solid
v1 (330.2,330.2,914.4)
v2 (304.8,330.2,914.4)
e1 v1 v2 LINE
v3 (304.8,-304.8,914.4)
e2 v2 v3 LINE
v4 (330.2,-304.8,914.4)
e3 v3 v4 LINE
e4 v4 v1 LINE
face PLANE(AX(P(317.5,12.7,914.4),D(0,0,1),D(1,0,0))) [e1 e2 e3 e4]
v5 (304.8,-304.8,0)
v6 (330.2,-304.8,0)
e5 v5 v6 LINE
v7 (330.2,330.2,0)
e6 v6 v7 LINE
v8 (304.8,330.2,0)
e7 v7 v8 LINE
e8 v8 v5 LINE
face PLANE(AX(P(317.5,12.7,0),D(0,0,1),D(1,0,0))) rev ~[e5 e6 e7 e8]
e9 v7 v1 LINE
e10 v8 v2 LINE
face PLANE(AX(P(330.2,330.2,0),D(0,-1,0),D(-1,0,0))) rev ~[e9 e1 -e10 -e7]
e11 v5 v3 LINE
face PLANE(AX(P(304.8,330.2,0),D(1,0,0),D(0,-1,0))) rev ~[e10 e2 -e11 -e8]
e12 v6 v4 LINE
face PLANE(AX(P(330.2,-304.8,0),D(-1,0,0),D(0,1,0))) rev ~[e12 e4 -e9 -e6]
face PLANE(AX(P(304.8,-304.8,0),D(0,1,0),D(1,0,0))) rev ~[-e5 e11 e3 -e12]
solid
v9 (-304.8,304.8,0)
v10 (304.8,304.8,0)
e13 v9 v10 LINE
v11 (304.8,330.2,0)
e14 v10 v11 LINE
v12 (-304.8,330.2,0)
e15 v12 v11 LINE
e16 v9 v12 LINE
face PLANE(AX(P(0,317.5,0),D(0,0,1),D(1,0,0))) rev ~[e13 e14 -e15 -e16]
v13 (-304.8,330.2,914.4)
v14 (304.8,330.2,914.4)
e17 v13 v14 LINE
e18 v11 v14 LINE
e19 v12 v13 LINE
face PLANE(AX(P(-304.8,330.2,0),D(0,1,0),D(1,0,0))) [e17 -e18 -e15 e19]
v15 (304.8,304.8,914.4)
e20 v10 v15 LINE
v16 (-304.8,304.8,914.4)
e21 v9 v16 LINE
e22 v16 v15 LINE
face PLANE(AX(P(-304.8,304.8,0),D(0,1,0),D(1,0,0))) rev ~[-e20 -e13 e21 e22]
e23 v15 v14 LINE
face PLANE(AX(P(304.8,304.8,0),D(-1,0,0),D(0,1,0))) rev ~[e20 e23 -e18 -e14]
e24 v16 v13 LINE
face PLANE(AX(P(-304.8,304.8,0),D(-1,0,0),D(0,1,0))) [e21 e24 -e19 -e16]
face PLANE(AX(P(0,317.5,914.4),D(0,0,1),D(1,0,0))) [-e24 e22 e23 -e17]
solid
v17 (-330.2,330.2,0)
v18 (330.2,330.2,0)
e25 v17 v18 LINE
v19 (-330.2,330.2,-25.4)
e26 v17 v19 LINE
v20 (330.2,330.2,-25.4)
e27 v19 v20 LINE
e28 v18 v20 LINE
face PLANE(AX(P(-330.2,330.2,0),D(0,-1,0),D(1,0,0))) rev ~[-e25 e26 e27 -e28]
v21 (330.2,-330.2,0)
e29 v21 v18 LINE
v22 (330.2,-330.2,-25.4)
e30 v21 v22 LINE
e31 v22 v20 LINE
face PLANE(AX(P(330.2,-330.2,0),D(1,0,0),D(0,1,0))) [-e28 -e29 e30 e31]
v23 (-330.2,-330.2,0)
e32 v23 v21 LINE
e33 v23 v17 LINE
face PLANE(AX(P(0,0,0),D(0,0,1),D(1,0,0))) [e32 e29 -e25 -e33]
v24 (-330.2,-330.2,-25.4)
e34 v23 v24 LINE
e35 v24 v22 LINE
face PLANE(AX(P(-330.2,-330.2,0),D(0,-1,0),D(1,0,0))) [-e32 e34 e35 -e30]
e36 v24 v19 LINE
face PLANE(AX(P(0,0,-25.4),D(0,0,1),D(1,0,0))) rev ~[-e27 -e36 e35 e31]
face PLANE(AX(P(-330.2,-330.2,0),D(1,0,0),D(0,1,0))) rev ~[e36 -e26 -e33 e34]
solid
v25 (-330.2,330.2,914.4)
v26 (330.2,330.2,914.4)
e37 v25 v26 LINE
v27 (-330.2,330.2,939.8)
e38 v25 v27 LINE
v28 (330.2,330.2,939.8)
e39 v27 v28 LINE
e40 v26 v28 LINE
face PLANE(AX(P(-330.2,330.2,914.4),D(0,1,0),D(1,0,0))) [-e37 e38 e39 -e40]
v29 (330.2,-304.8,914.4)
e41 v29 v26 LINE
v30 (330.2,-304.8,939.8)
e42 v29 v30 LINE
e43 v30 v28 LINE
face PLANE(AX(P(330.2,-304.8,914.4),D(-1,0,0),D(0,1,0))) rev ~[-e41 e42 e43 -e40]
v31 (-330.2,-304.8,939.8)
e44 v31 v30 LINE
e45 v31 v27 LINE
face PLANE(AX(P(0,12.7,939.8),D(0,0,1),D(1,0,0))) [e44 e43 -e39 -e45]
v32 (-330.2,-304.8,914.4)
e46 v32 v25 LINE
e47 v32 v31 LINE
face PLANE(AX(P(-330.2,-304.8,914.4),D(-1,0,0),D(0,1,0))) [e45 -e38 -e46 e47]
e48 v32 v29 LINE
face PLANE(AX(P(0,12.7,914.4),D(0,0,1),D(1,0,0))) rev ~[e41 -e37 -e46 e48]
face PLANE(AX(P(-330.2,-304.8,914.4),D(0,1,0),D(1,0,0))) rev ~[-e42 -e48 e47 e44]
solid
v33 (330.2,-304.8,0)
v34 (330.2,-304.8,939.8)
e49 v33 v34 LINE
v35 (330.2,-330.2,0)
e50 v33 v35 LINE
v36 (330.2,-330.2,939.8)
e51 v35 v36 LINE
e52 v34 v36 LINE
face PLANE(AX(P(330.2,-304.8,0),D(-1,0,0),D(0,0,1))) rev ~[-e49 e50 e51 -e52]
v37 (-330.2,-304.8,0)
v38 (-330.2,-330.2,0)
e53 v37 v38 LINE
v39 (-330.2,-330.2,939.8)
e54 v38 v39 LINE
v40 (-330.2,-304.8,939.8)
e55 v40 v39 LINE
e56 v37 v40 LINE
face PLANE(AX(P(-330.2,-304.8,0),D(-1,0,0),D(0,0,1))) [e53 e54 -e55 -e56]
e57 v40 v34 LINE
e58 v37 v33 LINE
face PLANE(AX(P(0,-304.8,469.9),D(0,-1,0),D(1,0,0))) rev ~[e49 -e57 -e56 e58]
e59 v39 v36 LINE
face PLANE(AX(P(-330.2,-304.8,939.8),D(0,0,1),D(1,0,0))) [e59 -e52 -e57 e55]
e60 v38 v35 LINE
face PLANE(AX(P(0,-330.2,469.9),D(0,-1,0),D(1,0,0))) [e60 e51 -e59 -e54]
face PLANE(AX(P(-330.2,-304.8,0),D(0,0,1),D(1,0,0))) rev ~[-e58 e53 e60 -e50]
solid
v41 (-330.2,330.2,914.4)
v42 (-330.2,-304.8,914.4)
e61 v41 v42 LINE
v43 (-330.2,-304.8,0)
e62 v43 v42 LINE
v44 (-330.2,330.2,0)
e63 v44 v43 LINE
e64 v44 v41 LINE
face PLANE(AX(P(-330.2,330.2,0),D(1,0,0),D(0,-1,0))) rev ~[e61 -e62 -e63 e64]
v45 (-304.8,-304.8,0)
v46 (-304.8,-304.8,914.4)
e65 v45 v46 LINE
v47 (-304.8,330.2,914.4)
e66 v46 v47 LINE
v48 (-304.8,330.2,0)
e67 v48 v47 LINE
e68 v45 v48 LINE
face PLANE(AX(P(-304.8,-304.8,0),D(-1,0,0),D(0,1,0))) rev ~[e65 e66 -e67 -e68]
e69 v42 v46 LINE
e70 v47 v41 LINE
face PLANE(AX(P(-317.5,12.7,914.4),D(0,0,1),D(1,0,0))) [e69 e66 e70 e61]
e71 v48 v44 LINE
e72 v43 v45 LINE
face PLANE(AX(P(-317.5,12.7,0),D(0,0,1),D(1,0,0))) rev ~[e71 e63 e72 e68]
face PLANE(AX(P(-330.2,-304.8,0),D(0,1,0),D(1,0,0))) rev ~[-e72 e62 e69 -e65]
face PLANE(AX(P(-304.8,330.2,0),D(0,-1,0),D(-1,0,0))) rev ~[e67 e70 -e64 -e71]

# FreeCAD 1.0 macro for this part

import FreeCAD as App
import Part
import Sketcher
Q = App.Units.Quantity


def add_polygon(sketch, points):
    """Adds a closed chain of lines whose ends are joined by coincident constraints."""
    first, n = sketch.GeometryCount, len(points)
    for a, b in zip(points, points[1:] + points[:1]):
        sketch.addGeometry(Part.LineSegment(App.Vector(*a, 0), App.Vector(*b, 0)), False)
    for i in range(n):
        sketch.addConstraint(Sketcher.Constraint("Coincident", first + i, 2, first + (i + 1) % n, 1))

doc = App.newDocument("Part")
body = doc.addObject("PartDesign::Body", "Body")
body.AllowCompound = True

# Sketch on XY plane
sketch1 = body.newObject("Sketcher::SketchObject", "Sketch")
sketch1.AttachmentSupport = (doc.getObject("XY_Plane"), [""])
sketch1.MapMode = "FlatFace"
add_polygon(sketch1, [(-330, -305), (-305, -305), (-305, 330), (-330, 330)])  # lines 0-3
add_polygon(sketch1, [(305, -305), (330, -305), (330, 330), (305, 330)])  # lines 4-7
sketch1.addConstraint([
    Sketcher.Constraint("Horizontal", 0),
    Sketcher.Constraint("Vertical", 1),
    Sketcher.Constraint("Horizontal", 2),
    Sketcher.Constraint("Vertical", 3),
    Sketcher.Constraint("Horizontal", 4),
    Sketcher.Constraint("Vertical", 5),
    Sketcher.Constraint("Horizontal", 6),
    Sketcher.Constraint("Vertical", 7),
    Sketcher.Constraint("Symmetric", 3, 2, 4, 2, -2),
    Sketcher.Constraint("Symmetric", 1, 2, 6, 2, -2),
    Sketcher.Constraint("DistanceX", 0, 1, 0, 2, Q("1 in")),
    Sketcher.Constraint("DistanceY", 1, 1, 1, 2, Q("25 in")),
    Sketcher.Constraint("DistanceX", 0, 2, -1, 1, Q("12 in")),
    Sketcher.Constraint("DistanceY", 0, 2, -1, 1, Q("12 in")),
])
pad1 = body.newObject("PartDesign::Pad", "Pad")
pad1.Profile = sketch1
pad1.Length = Q("36 in")
body2 = doc.addObject("PartDesign::Body", "Body001")

# Sketch on XY plane
sketch2 = body2.newObject("Sketcher::SketchObject", "Sketch001")
sketch2.AttachmentSupport = (doc.getObject("XY_Plane001"), [""])
sketch2.MapMode = "FlatFace"
add_polygon(sketch2, [(-305, 330), (-305, 305), (305, 305), (305, 330)])  # lines 0-3
sketch2.addConstraint([
    Sketcher.Constraint("Vertical", 0),
    Sketcher.Constraint("Horizontal", 1),
    Sketcher.Constraint("Vertical", 2),
    Sketcher.Constraint("Horizontal", 3),
    Sketcher.Constraint("DistanceX", 1, 1, 1, 2, Q("24 in")),
    Sketcher.Constraint("DistanceY", 0, 2, 0, 1, Q("1 in")),
    Sketcher.Constraint("DistanceX", 0, 2, -1, 1, Q("12 in")),
    Sketcher.Constraint("DistanceY", -1, 1, 0, 2, Q("12 in")),
])
pad2 = body2.newObject("PartDesign::Pad", "Pad001")
pad2.Profile = sketch2
pad2.Length = Q("36 in")
body3 = doc.addObject("PartDesign::Body", "Body002")

# Sketch on XY plane
sketch3 = body3.newObject("Sketcher::SketchObject", "Sketch002")
sketch3.AttachmentSupport = (doc.getObject("XY_Plane002"), [""])
sketch3.MapMode = "FlatFace"
sketch3.AttachmentOffset = App.Placement(App.Vector(0, 0, 36 * 25.4), App.Rotation())
add_polygon(sketch3, [(-330, 330), (-330, -305), (330, -305), (330, 330)])  # lines 0-3
sketch3.addConstraint([
    Sketcher.Constraint("Vertical", 0),
    Sketcher.Constraint("Horizontal", 1),
    Sketcher.Constraint("Vertical", 2),
    Sketcher.Constraint("Horizontal", 3),
    Sketcher.Constraint("DistanceX", 1, 1, 1, 2, Q("26 in")),
    Sketcher.Constraint("DistanceY", 0, 2, 0, 1, Q("25 in")),
    Sketcher.Constraint("DistanceX", 0, 2, -1, 1, Q("13 in")),
    Sketcher.Constraint("DistanceY", 0, 2, -1, 1, Q("12 in")),
])
pad3 = body3.newObject("PartDesign::Pad", "Pad002")
pad3.Profile = sketch3
pad3.Length = Q("1 in")
body4 = doc.addObject("PartDesign::Body", "Body003")

# Sketch on XY plane
sketch4 = body4.newObject("Sketcher::SketchObject", "Sketch003")
sketch4.AttachmentSupport = (doc.getObject("XY_Plane003"), [""])
sketch4.MapMode = "FlatFace"
add_polygon(sketch4, [(-330, 330), (-330, -330), (330, -330), (330, 330)])  # lines 0-3
sketch4.addConstraint([
    Sketcher.Constraint("Vertical", 0),
    Sketcher.Constraint("Horizontal", 1),
    Sketcher.Constraint("Vertical", 2),
    Sketcher.Constraint("Horizontal", 3),
    Sketcher.Constraint("Symmetric", 0, 2, 2, 2, -1, 1),
    Sketcher.Constraint("Equal", 3, 0),
    Sketcher.Constraint("DistanceX", 1, 1, 1, 2, Q("26 in")),
])
pad4 = body4.newObject("PartDesign::Pad", "Pad003")
pad4.Profile = sketch4
pad4.Length = Q("1 in")
pad4.Reversed = True
body5 = doc.addObject("PartDesign::Body", "Body004")

# Sketch on XZ plane
sketch5 = body5.newObject("Sketcher::SketchObject", "Sketch004")
sketch5.AttachmentSupport = (doc.getObject("XZ_Plane004"), [""])
sketch5.MapMode = "FlatFace"
sketch5.AttachmentOffset = App.Placement(App.Vector(0, 0, 12 * 25.4), App.Rotation())
add_polygon(sketch5, [(-330, 940), (-330, 0), (330, 0), (330, 940)])  # lines 0-3
sketch5.addConstraint([
    Sketcher.Constraint("Vertical", 0),
    Sketcher.Constraint("Horizontal", 1),
    Sketcher.Constraint("Vertical", 2),
    Sketcher.Constraint("Horizontal", 3),
    Sketcher.Constraint("Symmetric", 0, 2, 1, 2, -1, 1),
    Sketcher.Constraint("DistanceX", 1, 1, 1, 2, Q("26 in")),
    Sketcher.Constraint("DistanceY", 0, 2, 0, 1, Q("37 in")),
])
pad5 = body5.newObject("PartDesign::Pad", "Pad004")
pad5.Profile = sketch5
pad5.Length = Q("1 in")

doc.recompute()
